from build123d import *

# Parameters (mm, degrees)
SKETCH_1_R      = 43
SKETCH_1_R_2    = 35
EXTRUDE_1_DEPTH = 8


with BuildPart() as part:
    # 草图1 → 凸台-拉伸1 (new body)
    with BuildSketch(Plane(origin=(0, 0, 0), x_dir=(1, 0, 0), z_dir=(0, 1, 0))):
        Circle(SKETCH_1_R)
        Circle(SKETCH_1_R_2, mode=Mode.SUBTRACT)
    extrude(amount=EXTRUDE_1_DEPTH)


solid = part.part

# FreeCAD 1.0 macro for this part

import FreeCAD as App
import Part
import Sketcher

doc = App.newDocument("Part")
body = doc.addObject("PartDesign::Body", "Body")

sketch1 = doc.addObject("Sketcher::SketchObject", "Sketch")
body.addObject(sketch1)
sketch1.AttachmentSupport = (doc.XZ_Plane, [""])
sketch1.MapMode = "FlatFace"
sketch1.addGeometry(Part.Circle(App.Vector(0, 0, 0), App.Vector(0, 0, 1), 43), False)
sketch1.addGeometry(Part.Circle(App.Vector(0, 0, 0), App.Vector(0, 0, 1), 35), False)
sketch1.addConstraint(Sketcher.Constraint("Coincident", 0, 3, -1, 1))
sketch1.addConstraint(Sketcher.Constraint("Coincident", 1, 3, -1, 1))
sketch1.addConstraint(Sketcher.Constraint("Diameter", 0, 86.0))
sketch1.addConstraint(Sketcher.Constraint("Diameter", 1, 70.0))
pad1 = doc.addObject("PartDesign::Pad", "Pad")
body.addObject(pad1)
pad1.Profile = sketch1
pad1.Length = 8
pad1.Reversed = True

doc.recompute()
